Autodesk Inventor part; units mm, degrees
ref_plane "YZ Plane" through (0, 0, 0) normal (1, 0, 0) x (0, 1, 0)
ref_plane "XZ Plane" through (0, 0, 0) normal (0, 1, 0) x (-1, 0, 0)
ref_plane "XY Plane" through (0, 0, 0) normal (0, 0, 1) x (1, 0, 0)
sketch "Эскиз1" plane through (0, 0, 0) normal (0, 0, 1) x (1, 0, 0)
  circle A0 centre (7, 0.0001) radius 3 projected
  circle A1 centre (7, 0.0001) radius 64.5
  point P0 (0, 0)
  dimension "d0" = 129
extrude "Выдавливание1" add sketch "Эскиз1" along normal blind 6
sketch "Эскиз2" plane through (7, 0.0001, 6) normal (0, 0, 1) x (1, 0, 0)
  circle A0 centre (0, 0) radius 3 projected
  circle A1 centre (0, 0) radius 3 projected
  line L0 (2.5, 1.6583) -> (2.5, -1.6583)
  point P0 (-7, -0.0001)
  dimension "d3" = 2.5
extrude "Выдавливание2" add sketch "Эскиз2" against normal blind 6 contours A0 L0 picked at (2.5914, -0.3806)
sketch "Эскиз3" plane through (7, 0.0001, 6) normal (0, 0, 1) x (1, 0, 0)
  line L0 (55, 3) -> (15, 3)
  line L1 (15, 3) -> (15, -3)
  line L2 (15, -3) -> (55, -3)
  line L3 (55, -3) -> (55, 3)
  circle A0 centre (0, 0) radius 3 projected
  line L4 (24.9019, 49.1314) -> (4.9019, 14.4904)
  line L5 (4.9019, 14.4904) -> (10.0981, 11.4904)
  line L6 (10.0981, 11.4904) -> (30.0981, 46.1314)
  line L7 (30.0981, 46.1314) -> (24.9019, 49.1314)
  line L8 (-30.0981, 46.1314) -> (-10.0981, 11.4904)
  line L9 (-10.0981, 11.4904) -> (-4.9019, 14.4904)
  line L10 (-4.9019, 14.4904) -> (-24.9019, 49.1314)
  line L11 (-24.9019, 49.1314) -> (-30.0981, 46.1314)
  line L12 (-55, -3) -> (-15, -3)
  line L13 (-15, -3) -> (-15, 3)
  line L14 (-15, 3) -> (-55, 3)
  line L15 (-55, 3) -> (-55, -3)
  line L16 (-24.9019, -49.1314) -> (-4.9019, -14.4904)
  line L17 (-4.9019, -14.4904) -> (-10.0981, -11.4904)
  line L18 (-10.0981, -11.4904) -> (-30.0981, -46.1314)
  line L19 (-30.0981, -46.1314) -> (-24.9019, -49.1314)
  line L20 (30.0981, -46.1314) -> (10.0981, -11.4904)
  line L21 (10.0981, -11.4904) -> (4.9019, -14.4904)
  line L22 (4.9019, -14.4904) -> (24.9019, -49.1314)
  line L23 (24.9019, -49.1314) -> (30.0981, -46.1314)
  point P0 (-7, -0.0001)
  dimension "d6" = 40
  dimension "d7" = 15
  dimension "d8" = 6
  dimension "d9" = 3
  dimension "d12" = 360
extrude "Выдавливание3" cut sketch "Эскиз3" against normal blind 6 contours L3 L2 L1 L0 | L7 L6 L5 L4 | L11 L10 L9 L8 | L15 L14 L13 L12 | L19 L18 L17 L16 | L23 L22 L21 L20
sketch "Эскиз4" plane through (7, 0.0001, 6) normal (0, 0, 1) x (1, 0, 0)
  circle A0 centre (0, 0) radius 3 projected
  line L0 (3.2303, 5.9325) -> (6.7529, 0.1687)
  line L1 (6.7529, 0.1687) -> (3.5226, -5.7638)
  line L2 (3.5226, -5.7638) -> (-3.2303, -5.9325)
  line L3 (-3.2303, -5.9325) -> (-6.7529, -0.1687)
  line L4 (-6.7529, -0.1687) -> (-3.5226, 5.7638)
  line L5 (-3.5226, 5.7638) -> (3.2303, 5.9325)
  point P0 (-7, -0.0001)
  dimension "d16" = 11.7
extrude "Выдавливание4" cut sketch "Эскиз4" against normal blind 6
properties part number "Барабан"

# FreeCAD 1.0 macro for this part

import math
import FreeCAD as App
import Part
import Sketcher
Q = App.Units.Quantity


def add_polygon(sketch, points):
    """Adds a closed chain of lines whose ends are joined by coincident constraints."""
    first, n = sketch.GeometryCount, len(points)
    for a, b in zip(points, points[1:] + points[:1]):
        sketch.addGeometry(Part.LineSegment(App.Vector(*a, 0), App.Vector(*b, 0)), False)
    for i in range(n):
        sketch.addConstraint(Sketcher.Constraint("Coincident", first + i, 2, first + (i + 1) % n, 1))

doc = App.newDocument("Part")
body = doc.addObject("PartDesign::Body", "Body")
body.AllowCompound = True

# Sketch on XY plane
sketch1 = body.newObject("Sketcher::SketchObject", "Sketch")
sketch1.AttachmentSupport = (doc.getObject("XY_Plane"), [""])
sketch1.MapMode = "FlatFace"
sketch1.addGeometry(Part.Circle(App.Vector(7, 0, 0), App.Vector(0, 0, 1), 64.5), False)
sketch1.addGeometry(Part.Circle(App.Vector(7, 0, 0), App.Vector(0, 0, 1), 3), False)
sketch1.addConstraint(Sketcher.Constraint("Coincident", 1, 3, 0, 3))
sketch1.addConstraint(Sketcher.Constraint("PointOnObject", 0, 3, -1))
sketch1.addConstraint(Sketcher.Constraint("Diameter", 0, Q("129 mm")))
sketch1.addConstraint(Sketcher.Constraint("Diameter", 1, Q("6 mm")))
sketch1.addConstraint(Sketcher.Constraint("DistanceX", -1, 1, 0, 3, Q("7 mm")))
pad1 = body.newObject("PartDesign::Pad", "Pad")
pad1.Profile = sketch1
pad1.Length = 6

# Sketch on XY plane
sketch2 = body.newObject("Sketcher::SketchObject", "Sketch001")
sketch2.AttachmentSupport = (doc.getObject("XY_Plane"), [""])
sketch2.MapMode = "FlatFace"
sketch2.AttachmentOffset = App.Placement(App.Vector(0, 0, 6), App.Rotation())
sketch2.addGeometry(Part.ArcOfCircle(Part.Circle(App.Vector(7, 0, 0), App.Vector(0, 0, 1), 3), math.radians(-34), math.radians(34)), False)
sketch2.addGeometry(Part.LineSegment(App.Vector(9.5, -1.7, 0), App.Vector(9.5, 1.7, 0)), False)
sketch2.addConstraint(Sketcher.Constraint("Coincident", 0, 1, 1, 1))
sketch2.addConstraint(Sketcher.Constraint("Coincident", 1, 2, 0, 2))
sketch2.addConstraint(Sketcher.Constraint("Vertical", 1))
sketch2.addConstraint(Sketcher.Constraint("PointOnObject", 0, 3, -1))
sketch2.addConstraint(Sketcher.Constraint("Radius", 0, Q("3 mm")))
sketch2.addConstraint(Sketcher.Constraint("DistanceX", 0, 3, 0, 1, Q("2.5 mm")))
sketch2.addConstraint(Sketcher.Constraint("DistanceX", -1, 1, 0, 3, Q("7 mm")))
pad2 = body.newObject("PartDesign::Pad", "Pad001")
pad2.Profile = sketch2
pad2.Length = 6
pad2.Reversed = True

# Sketch on XY plane
sketch3 = body.newObject("Sketcher::SketchObject", "Sketch002")
sketch3.AttachmentSupport = (doc.getObject("XY_Plane"), [""])
sketch3.MapMode = "FlatFace"
sketch3.AttachmentOffset = App.Placement(App.Vector(0, 0, 6), App.Rotation())
add_polygon(sketch3, [(62, -3), (62, 3), (22, 3), (22, -3)])  # lines 0-3
add_polygon(sketch3, [(37, 46), (32, 49), (12, 14), (17, 11)])  # lines 4-7
add_polygon(sketch3, [(-18, 49), (-23, 46), (-3, 11), (2, 14)])  # lines 8-11
add_polygon(sketch3, [(-48, 3), (-48, -3), (-8, -3), (-8, 3)])  # lines 12-15
add_polygon(sketch3, [(-23, -46), (-18, -49), (2, -14), (-3, -11)])  # lines 16-19
add_polygon(sketch3, [(32, -49), (37, -46), (17, -11), (12, -14)])  # lines 20-23
sketch3.addConstraint(Sketcher.Constraint("Vertical", 0))
sketch3.addConstraint(Sketcher.Constraint("Horizontal", 1))
sketch3.addConstraint(Sketcher.Constraint("Vertical", 2))
sketch3.addConstraint(Sketcher.Constraint("Horizontal", 3))
sketch3.addConstraint(Sketcher.Constraint("Vertical", 12))
sketch3.addConstraint(Sketcher.Constraint("Horizontal", 13))
sketch3.addConstraint(Sketcher.Constraint("Vertical", 14))
sketch3.addConstraint(Sketcher.Constraint("Horizontal", 15))
sketch3.addConstraint(Sketcher.Constraint("Symmetric", 11, 2, 16, 2, -1))
sketch3.addConstraint(Sketcher.Constraint("Symmetric", 10, 2, 17, 2, -1))
sketch3.addConstraint(Sketcher.Constraint("Symmetric", 9, 2, 18, 2, -1))
sketch3.addConstraint(Sketcher.Constraint("Symmetric", 8, 2, 19, 2, -1))
sketch3.addConstraint(Sketcher.Constraint("Symmetric", 7, 2, 20, 2, -1))
sketch3.addConstraint(Sketcher.Constraint("Symmetric", 6, 2, 21, 2, -1))
sketch3.addConstraint(Sketcher.Constraint("Symmetric", 5, 2, 22, 2, -1))
sketch3.addConstraint(Sketcher.Constraint("Symmetric", 4, 2, 23, 2, -1))
sketch3.addConstraint(Sketcher.Constraint("Perpendicular", 4, 5))
sketch3.addConstraint(Sketcher.Constraint("Perpendicular", 5, 6))
sketch3.addConstraint(Sketcher.Constraint("Perpendicular", 6, 7))
sketch3.addConstraint(Sketcher.Constraint("Perpendicular", 8, 9))
sketch3.addConstraint(Sketcher.Constraint("Perpendicular", 9, 10))
sketch3.addConstraint(Sketcher.Constraint("Perpendicular", 10, 11))
sketch3.addConstraint(Sketcher.Constraint("Perpendicular", 7, 16))
sketch3.addConstraint(Sketcher.Constraint("Horizontal", 7, 2, 8, 2))
sketch3.addConstraint(Sketcher.Constraint("Horizontal", 6, 2, 9, 2))
sketch3.addConstraint(Sketcher.Constraint("Horizontal", 5, 2, 10, 2))
sketch3.addConstraint(Sketcher.Constraint("Horizontal", 3, 2, 12, 2))
sketch3.addConstraint(Sketcher.Constraint("Horizontal", 1, 2, 14, 2))
sketch3.addConstraint(Sketcher.Constraint("Equal", 3, 13))
sketch3.addConstraint(Sketcher.Constraint("DistanceX", 1, 2, 1, 1, Q("40 mm")))
sketch3.addConstraint(Sketcher.Constraint("DistanceY", 0, 1, 0, 2, Q("6 mm")))
sketch3.addConstraint(Sketcher.Constraint("Distance", 4, Q("6 mm")))
sketch3.addConstraint(Sketcher.Constraint("Distance", 5, Q("40 mm")))
sketch3.addConstraint(Sketcher.Constraint("DistanceY", -1, 1, 0, 2, Q("3 mm")))
sketch3.addConstraint(Sketcher.Constraint("DistanceY", 6, 2, 5, 2, Q("3 mm")))
sketch3.addConstraint(Sketcher.Constraint("DistanceX", 9, 2, 5, 2, Q("15 mm")))
sketch3.addConstraint(Sketcher.Constraint("DistanceX", -1, 1, 0, 2, Q("62 mm")))
sketch3.addConstraint(Sketcher.Constraint("DistanceX", 12, 2, -1, 1, Q("48 mm")))
sketch3.addConstraint(Sketcher.Constraint("DistanceX", -1, 1, 4, 2, Q("31.902 mm")))
sketch3.addConstraint(Sketcher.Constraint("DistanceY", -1, 1, 4, 2, Q("49.1315 mm")))
pocket1 = body.newObject("PartDesign::Pocket", "Pocket")
pocket1.Profile = sketch3
pocket1.Length = 6

# Sketch on XY plane
sketch4 = body.newObject("Sketcher::SketchObject", "Sketch003")
sketch4.AttachmentSupport = (doc.getObject("XY_Plane"), [""])
sketch4.MapMode = "FlatFace"
sketch4.AttachmentOffset = App.Placement(App.Vector(0, 0, 6), App.Rotation())
add_polygon(sketch4, [(13.8, 0.2), (10.2, 5.9), (3.5, 5.8), (0.2, -0.2), (3.8, -5.9), (10.5, -5.8)])  # lines 0-5
sketch4.addGeometry(Part.Circle(App.Vector(7, 0, 0), App.Vector(0, 0, 1), 3), False)  # 6
sketch4.addConstraint(Sketcher.Constraint("PointOnObject", 6, 3, -1))
sketch4.addConstraint(Sketcher.Constraint("Parallel", 0, 3))
sketch4.addConstraint(Sketcher.Constraint("Parallel", 1, 4))
sketch4.addConstraint(Sketcher.Constraint("Parallel", 2, 5))
sketch4.addConstraint(Sketcher.Constraint("Equal", 0, 1))
sketch4.addConstraint(Sketcher.Constraint("Equal", 1, 2))
sketch4.addConstraint(Sketcher.Constraint("Equal", 2, 3))
sketch4.addConstraint(Sketcher.Constraint("Diameter", 6, Q("6 mm")))
sketch4.addConstraint(Sketcher.Constraint("DistanceX", -1, 1, 6, 3, Q("7 mm")))
sketch4.addConstraint(Sketcher.Constraint("Angle", 1, Q("-178.569 deg")))
sketch4.addConstraint(Sketcher.Constraint("Distance", 0, Q("6.755 mm")))
sketch4.addConstraint(Sketcher.Constraint("DistanceY", -1, 1, 1, 2, Q("5.764 mm")))
sketch4.addConstraint(Sketcher.Constraint("DistanceX", -1, 1, 2, 2, Q("0.247 mm")))
sketch4.addConstraint(Sketcher.Constraint("DistanceX", -1, 1, 5, 2, Q("13.753 mm")))
sketch4.addConstraint(Sketcher.Constraint("DistanceY", 3, 2, 0, 2, Q("11.865 mm")))
pocket2 = body.newObject("PartDesign::Pocket", "Pocket001")
pocket2.Profile = sketch4
pocket2.Length = 6

doc.recompute()
